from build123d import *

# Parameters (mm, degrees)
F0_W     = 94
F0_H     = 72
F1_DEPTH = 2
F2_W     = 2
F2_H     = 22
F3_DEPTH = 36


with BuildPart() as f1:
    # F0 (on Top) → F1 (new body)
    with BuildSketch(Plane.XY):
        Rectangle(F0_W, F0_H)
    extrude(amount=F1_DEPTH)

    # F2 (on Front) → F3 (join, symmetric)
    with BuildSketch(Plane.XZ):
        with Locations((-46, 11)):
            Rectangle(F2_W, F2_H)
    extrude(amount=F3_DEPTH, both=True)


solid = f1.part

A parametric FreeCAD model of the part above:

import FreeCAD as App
import Part
import Sketcher
Q = App.Units.Quantity

doc = App.newDocument("Part")
body = doc.addObject("PartDesign::Body", "Body")

sketch1 = doc.addObject("Sketcher::SketchObject", "Sketch")
body.addObject(sketch1)
sketch1.AttachmentSupport = (doc.XY_Plane, [""])
sketch1.MapMode = "FlatFace"
sketch1.addGeometry([
    Part.LineSegment(App.Vector(-47, 36, 0), App.Vector(-47, -36, 0)),
    Part.LineSegment(App.Vector(-47, -36, 0), App.Vector(47, -36, 0)),
    Part.LineSegment(App.Vector(47, -36, 0), App.Vector(47, 36, 0)),
    Part.LineSegment(App.Vector(47, 36, 0), App.Vector(-47, 36, 0)),
], False)
sketch1.addConstraint([
    Sketcher.Constraint("Coincident", 0, 2, 1, 1),
    Sketcher.Constraint("Coincident", 1, 2, 2, 1),
    Sketcher.Constraint("Coincident", 2, 2, 3, 1),
    Sketcher.Constraint("Coincident", 3, 2, 0, 1),
    Sketcher.Constraint("Vertical", 0),
    Sketcher.Constraint("Horizontal", 1),
    Sketcher.Constraint("Vertical", 2),
    Sketcher.Constraint("Horizontal", 3),
    Sketcher.Constraint("Symmetric", 0, 2, 2, 2, -1, 1),
    Sketcher.Constraint("DistanceX", 1, 1, 1, 2, Q("94 mm")),
    Sketcher.Constraint("DistanceY", 0, 2, 0, 1, Q("72 mm")),
])
pad1 = doc.addObject("PartDesign::Pad", "Pad")
body.addObject(pad1)
pad1.Profile = sketch1
pad1.Length = 2

sketch2 = doc.addObject("Sketcher::SketchObject", "Sketch001")
body.addObject(sketch2)
sketch2.AttachmentSupport = (doc.XZ_Plane, [""])
sketch2.MapMode = "FlatFace"
sketch2.addGeometry([
    Part.LineSegment(App.Vector(-47, 22, 0), App.Vector(-47, 0, 0)),
    Part.LineSegment(App.Vector(-47, 0, 0), App.Vector(-45, 0, 0)),
    Part.LineSegment(App.Vector(-45, 0, 0), App.Vector(-45, 22, 0)),
    Part.LineSegment(App.Vector(-45, 22, 0), App.Vector(-47, 22, 0)),
], False)
sketch2.addConstraint([
    Sketcher.Constraint("Coincident", 0, 2, 1, 1),
    Sketcher.Constraint("Coincident", 1, 2, 2, 1),
    Sketcher.Constraint("Coincident", 2, 2, 3, 1),
    Sketcher.Constraint("Coincident", 3, 2, 0, 1),
    Sketcher.Constraint("Vertical", 0),
    Sketcher.Constraint("Horizontal", 1),
    Sketcher.Constraint("Vertical", 2),
    Sketcher.Constraint("Horizontal", 3),
    Sketcher.Constraint("PointOnObject", 0, 2, -1),
    Sketcher.Constraint("DistanceX", 1, 1, 1, 2, Q("2 mm")),
    Sketcher.Constraint("DistanceY", 0, 2, 0, 1, Q("22 mm")),
    Sketcher.Constraint("DistanceX", 0, 2, -1, 1, Q("47 mm")),
])
pad2 = doc.addObject("PartDesign::Pad", "Pad001")
body.addObject(pad2)
pad2.Profile = sketch2
pad2.Length = 72
pad2.Midplane = True

doc.recompute()
